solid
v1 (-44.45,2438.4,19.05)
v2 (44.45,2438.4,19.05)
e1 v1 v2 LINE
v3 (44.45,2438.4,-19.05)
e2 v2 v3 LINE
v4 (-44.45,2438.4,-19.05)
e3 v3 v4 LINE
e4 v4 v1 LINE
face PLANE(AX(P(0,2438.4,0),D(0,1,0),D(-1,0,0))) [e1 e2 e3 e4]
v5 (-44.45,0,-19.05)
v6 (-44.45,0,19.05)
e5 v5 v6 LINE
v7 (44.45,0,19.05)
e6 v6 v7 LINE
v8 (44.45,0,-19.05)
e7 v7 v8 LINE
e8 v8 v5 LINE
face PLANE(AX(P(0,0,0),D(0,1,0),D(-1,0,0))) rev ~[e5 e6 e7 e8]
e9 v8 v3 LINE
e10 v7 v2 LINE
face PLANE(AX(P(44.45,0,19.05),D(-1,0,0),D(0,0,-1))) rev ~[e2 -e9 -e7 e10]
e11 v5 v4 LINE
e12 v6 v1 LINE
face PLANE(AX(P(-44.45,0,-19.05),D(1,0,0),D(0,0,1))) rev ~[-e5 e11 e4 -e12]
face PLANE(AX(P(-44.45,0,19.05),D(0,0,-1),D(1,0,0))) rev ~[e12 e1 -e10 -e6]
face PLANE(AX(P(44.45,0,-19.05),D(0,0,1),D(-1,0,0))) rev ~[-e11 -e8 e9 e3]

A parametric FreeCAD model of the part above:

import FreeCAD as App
import Part
import Sketcher

V = App.Vector
Q = App.Units.Quantity


def add_polygon(sketch, points):
    """Adds a closed chain of lines whose ends are joined by coincident constraints."""
    first, n = sketch.GeometryCount, len(points)
    for a, b in zip(points, points[1:] + points[:1]):
        sketch.addGeometry(Part.LineSegment(App.Vector(*a, 0), App.Vector(*b, 0)), False)
    for i in range(n):
        sketch.addConstraint(Sketcher.Constraint("Coincident", first + i, 2, first + (i + 1) % n, 1))

doc = App.newDocument("Part")
params = doc.addObject("Spreadsheet::Sheet", "Params")
for row, (alias, value) in enumerate([
    ("sketch1_width", "3.5 in"),
    ("sketch1_height", "1.5 in"),
    ("pad1_length", "96 in"),
], start=1):
    params.set(f"A{row}", alias)
    params.set(f"B{row}", "=" + value)
    params.setAlias(f"B{row}", alias)

body = doc.addObject("PartDesign::Body", "Body")

# Sketch on XZ plane
sketch1 = body.newObject("Sketcher::SketchObject", "Sketch")
sketch1.AttachmentSupport = (doc.getObject("XZ_Plane"), [""])
sketch1.MapMode = "FlatFace"
add_polygon(sketch1, [(44, 19), (44, -19), (-44, -19), (-44, 19)])  # lines 0-3
sketch1.addConstraint([
    Sketcher.Constraint("Vertical", 0),
    Sketcher.Constraint("Horizontal", 1),
    Sketcher.Constraint("Vertical", 2),
    Sketcher.Constraint("Horizontal", 3),
    Sketcher.Constraint("Symmetric", 0, 2, 2, 2, -1, 1),
    Sketcher.Constraint("DistanceX", 1, 2, 1, 1, Q("3.5 in")),
    Sketcher.Constraint("DistanceY", 0, 2, 0, 1, Q("1.5 in")),
])
sketch1.setExpression("Constraints[9]", "Params.sketch1_width")
sketch1.setExpression("Constraints[10]", "Params.sketch1_height")
pad1 = body.newObject("PartDesign::Pad", "Pad")
pad1.Profile = sketch1
pad1.setExpression("Length", "Params.pad1_length")
pad1.Reversed = True

doc.recompute()
